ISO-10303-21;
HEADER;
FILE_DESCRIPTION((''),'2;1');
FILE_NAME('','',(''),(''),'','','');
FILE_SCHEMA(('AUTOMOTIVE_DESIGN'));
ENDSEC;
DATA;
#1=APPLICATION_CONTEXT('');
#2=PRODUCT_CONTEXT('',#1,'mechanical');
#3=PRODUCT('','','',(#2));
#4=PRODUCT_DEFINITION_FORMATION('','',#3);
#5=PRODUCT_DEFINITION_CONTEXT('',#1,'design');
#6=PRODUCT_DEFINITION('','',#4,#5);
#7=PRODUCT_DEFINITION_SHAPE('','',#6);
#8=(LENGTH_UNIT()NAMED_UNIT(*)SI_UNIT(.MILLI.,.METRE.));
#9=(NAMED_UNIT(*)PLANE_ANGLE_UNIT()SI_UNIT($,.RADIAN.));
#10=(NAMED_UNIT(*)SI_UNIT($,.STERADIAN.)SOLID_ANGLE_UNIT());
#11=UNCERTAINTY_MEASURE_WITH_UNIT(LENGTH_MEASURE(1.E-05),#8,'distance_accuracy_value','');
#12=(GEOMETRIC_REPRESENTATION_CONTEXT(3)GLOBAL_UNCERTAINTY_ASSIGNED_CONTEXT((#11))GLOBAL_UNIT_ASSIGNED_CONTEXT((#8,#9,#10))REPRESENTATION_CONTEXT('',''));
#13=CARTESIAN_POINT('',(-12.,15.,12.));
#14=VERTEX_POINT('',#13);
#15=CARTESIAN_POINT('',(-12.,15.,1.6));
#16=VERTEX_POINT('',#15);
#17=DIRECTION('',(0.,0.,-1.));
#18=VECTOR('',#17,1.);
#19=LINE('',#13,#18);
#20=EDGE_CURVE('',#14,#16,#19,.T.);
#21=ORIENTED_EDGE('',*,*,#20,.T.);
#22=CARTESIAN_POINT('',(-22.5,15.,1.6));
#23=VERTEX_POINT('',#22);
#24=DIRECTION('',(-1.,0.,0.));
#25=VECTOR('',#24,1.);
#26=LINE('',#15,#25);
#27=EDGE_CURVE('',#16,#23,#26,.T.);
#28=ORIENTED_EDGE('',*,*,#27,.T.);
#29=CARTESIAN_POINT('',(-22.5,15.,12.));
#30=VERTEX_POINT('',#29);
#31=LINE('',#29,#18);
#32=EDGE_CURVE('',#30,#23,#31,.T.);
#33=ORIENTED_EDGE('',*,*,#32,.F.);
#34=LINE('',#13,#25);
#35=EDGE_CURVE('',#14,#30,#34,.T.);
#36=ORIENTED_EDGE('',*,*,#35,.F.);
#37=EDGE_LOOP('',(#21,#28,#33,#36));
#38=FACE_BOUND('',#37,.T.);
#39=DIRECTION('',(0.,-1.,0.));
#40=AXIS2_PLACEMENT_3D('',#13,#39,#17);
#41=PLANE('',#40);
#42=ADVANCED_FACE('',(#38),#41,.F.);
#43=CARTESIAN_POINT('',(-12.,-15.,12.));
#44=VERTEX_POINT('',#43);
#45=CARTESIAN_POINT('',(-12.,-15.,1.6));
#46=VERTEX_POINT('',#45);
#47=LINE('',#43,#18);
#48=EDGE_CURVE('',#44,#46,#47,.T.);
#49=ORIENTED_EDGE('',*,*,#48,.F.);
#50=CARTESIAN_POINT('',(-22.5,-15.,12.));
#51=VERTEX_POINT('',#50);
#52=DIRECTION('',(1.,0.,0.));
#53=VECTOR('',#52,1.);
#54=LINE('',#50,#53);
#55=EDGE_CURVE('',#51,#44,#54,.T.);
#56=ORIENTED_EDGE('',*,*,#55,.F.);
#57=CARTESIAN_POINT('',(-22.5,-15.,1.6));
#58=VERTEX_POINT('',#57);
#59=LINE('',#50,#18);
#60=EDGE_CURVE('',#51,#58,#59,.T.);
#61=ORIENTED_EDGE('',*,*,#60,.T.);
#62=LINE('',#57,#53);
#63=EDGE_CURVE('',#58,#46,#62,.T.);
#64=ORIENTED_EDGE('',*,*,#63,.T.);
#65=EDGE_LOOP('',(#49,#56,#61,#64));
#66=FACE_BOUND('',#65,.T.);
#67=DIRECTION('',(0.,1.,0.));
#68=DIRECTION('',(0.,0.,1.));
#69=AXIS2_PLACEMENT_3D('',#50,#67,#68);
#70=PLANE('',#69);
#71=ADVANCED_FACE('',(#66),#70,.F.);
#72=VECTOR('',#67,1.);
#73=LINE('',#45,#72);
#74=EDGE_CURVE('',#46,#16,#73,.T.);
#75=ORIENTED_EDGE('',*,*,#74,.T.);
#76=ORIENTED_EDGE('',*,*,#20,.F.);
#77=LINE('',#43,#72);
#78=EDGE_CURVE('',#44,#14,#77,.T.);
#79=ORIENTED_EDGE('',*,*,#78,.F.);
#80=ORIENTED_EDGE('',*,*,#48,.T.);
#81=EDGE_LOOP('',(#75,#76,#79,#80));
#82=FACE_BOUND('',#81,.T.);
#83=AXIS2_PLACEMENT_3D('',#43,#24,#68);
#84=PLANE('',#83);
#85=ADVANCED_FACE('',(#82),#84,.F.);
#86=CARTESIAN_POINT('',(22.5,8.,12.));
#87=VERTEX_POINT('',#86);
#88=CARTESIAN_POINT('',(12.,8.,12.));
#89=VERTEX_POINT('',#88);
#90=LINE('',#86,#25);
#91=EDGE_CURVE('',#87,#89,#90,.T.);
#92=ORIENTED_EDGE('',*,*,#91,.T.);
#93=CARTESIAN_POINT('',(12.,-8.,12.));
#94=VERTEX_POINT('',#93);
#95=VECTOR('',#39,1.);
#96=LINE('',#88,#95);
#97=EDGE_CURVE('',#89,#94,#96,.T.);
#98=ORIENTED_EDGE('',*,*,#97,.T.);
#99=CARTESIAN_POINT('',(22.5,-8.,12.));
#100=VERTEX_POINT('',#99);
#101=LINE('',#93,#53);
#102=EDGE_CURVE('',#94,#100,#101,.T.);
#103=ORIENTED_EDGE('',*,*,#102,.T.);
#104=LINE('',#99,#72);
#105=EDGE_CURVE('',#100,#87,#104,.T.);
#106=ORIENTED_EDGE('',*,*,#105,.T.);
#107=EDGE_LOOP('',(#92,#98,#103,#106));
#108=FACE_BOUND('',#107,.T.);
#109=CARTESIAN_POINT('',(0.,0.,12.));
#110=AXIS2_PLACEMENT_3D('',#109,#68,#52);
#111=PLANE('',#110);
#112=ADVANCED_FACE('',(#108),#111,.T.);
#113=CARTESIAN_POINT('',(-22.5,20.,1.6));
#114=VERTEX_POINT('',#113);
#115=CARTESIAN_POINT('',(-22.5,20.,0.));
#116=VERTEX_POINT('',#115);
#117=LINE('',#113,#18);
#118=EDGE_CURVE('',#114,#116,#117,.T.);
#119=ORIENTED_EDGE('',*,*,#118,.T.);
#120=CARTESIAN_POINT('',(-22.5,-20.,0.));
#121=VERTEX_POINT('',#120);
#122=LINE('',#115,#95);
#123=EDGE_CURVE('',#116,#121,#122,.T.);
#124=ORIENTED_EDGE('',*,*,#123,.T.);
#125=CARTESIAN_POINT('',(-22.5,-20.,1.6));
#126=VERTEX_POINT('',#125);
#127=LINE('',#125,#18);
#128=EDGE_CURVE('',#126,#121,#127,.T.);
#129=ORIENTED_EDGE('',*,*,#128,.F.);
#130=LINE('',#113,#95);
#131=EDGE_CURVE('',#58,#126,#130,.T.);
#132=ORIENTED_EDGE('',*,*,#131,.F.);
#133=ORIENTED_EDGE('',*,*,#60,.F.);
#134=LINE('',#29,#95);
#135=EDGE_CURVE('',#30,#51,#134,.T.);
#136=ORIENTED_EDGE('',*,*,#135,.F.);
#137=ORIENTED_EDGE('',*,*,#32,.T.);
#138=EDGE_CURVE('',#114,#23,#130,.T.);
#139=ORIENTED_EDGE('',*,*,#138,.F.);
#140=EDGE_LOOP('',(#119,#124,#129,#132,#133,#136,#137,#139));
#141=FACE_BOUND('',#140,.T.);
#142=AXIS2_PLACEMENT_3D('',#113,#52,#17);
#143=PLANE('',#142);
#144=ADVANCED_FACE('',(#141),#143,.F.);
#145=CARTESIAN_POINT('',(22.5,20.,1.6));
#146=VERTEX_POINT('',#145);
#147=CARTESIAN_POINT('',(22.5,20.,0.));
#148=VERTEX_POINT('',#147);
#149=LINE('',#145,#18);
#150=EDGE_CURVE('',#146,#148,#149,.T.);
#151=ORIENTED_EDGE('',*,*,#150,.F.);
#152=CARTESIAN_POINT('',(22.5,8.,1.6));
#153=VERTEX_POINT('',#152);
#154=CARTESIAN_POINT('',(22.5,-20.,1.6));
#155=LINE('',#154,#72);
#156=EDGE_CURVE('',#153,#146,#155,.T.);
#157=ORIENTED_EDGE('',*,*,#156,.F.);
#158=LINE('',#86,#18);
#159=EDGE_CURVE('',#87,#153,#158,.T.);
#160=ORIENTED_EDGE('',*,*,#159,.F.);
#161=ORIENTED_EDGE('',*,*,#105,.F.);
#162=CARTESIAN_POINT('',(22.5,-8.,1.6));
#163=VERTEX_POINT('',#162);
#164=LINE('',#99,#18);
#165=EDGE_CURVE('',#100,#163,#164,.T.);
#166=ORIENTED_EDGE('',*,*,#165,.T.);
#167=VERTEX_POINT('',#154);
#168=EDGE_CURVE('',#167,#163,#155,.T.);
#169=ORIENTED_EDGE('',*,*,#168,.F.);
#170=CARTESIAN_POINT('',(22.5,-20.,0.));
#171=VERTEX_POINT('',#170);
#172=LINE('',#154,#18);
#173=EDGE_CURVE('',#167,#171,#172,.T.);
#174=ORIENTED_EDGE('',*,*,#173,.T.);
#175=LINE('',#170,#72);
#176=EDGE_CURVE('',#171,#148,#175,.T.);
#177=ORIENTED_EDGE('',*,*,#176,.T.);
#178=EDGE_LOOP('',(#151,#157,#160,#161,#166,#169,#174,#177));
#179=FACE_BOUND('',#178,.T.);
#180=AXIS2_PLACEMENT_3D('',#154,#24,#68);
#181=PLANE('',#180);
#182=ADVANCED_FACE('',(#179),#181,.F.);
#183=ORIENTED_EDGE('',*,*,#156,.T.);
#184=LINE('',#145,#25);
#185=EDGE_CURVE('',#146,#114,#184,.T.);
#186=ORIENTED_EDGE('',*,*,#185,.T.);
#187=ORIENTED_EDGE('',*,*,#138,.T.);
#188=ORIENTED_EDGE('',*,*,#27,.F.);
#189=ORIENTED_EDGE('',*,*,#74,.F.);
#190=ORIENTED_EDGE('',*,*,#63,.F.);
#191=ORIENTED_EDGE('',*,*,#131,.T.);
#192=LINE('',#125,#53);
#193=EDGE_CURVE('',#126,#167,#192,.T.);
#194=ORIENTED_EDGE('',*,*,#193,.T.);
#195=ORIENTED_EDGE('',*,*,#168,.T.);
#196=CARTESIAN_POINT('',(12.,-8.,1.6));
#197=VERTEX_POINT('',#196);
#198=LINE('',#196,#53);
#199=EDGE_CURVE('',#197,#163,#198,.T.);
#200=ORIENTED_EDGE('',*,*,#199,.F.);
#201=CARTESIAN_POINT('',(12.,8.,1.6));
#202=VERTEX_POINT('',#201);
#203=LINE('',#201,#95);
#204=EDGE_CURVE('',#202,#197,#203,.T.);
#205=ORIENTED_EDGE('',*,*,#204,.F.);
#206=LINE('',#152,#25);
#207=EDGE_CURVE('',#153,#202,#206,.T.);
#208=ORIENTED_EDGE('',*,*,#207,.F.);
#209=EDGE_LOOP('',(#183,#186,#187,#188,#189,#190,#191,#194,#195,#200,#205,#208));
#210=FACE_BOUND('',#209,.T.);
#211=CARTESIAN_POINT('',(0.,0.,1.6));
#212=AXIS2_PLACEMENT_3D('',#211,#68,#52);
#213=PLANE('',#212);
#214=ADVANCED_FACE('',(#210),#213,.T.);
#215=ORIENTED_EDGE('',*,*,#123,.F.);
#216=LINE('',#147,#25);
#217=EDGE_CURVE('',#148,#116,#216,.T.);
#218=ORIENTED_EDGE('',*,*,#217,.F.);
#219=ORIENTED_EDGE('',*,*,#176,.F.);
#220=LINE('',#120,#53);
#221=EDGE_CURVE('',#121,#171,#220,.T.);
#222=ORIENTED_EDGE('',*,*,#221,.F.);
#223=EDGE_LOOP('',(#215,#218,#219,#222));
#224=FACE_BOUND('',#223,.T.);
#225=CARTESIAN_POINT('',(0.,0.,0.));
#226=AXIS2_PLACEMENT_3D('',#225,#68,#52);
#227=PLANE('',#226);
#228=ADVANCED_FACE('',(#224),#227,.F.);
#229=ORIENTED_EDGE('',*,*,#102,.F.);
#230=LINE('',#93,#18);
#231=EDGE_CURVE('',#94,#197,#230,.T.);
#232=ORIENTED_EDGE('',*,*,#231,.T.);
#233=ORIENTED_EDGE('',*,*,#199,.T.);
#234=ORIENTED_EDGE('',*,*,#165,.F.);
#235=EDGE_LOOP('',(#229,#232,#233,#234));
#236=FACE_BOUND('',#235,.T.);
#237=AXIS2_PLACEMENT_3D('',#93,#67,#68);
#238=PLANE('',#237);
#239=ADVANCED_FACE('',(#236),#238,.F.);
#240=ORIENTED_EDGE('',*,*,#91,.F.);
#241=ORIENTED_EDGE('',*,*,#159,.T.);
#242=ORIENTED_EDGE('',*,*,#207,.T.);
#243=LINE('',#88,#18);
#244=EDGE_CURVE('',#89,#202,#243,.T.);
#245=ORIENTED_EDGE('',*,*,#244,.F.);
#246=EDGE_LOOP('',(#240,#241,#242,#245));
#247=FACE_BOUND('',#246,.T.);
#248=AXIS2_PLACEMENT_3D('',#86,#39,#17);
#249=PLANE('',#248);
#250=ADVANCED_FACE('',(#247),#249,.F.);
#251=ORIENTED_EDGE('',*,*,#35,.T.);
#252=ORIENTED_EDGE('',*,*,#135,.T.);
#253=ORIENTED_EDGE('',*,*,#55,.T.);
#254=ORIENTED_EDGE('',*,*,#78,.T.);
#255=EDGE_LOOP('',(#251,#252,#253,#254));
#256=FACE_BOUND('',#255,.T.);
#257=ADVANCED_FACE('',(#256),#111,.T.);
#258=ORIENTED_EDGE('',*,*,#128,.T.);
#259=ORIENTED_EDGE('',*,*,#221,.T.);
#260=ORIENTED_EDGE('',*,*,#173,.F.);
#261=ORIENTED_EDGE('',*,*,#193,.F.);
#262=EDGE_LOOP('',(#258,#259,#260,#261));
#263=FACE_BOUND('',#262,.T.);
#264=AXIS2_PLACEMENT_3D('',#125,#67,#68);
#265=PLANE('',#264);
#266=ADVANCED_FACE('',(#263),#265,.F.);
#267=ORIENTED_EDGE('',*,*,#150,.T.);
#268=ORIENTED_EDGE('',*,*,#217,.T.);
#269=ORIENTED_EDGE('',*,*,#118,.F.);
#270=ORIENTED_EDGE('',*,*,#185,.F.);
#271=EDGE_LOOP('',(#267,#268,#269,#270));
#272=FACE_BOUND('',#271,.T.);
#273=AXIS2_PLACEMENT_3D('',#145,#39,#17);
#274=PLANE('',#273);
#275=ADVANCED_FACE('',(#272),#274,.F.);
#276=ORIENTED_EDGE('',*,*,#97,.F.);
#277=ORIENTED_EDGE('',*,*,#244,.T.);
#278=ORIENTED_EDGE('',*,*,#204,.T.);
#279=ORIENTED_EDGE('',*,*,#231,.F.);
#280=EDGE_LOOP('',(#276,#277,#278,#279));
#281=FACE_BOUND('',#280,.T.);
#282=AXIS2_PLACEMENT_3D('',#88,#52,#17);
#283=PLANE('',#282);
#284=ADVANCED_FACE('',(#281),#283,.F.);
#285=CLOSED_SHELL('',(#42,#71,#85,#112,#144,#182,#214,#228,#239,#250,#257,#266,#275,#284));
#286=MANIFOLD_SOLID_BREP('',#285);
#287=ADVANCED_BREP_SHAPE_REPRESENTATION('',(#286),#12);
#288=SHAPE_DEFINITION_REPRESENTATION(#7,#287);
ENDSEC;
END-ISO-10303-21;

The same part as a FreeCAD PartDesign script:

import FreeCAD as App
import Part
import Sketcher
Q = App.Units.Quantity

doc = App.newDocument("Part")
body = doc.addObject("PartDesign::Body", "Body")

sketch1 = body.newObject("Sketcher::SketchObject", "Sketch")
sketch1.AttachmentSupport = (doc.getObject("XY_Plane"), [""])
sketch1.MapMode = "FlatFace"
sketch1.addGeometry([
    Part.LineSegment(App.Vector(-22.5, 20, 0), App.Vector(-22.5, -20, 0)),
    Part.LineSegment(App.Vector(-22.5, -20, 0), App.Vector(22.5, -20, 0)),
    Part.LineSegment(App.Vector(22.5, -20, 0), App.Vector(22.5, 20, 0)),
    Part.LineSegment(App.Vector(22.5, 20, 0), App.Vector(-22.5, 20, 0)),
], False)
sketch1.addConstraint([
    Sketcher.Constraint("Coincident", 0, 2, 1, 1),
    Sketcher.Constraint("Coincident", 1, 2, 2, 1),
    Sketcher.Constraint("Coincident", 2, 2, 3, 1),
    Sketcher.Constraint("Coincident", 3, 2, 0, 1),
    Sketcher.Constraint("Vertical", 0),
    Sketcher.Constraint("Horizontal", 1),
    Sketcher.Constraint("Vertical", 2),
    Sketcher.Constraint("Horizontal", 3),
    Sketcher.Constraint("Symmetric", 0, 2, 2, 2, -1, 1),
    Sketcher.Constraint("DistanceX", 1, 1, 1, 2, Q("45 mm")),
    Sketcher.Constraint("DistanceY", 0, 2, 0, 1, Q("40 mm")),
])
pad1 = body.newObject("PartDesign::Pad", "Pad")
pad1.Profile = sketch1
pad1.Length = 1.6

sketch2 = body.newObject("Sketcher::SketchObject", "Sketch001")
sketch2.AttachmentSupport = (doc.getObject("XY_Plane"), [""])
sketch2.MapMode = "FlatFace"
sketch2.AttachmentOffset = App.Placement(App.Vector(0, 0, 1.6), App.Rotation())
sketch2.addGeometry([
    Part.LineSegment(App.Vector(-22.5, 15, 0), App.Vector(-22.5, -15, 0)),
    Part.LineSegment(App.Vector(-22.5, -15, 0), App.Vector(-12, -15, 0)),
    Part.LineSegment(App.Vector(-12, -15, 0), App.Vector(-12, 15, 0)),
    Part.LineSegment(App.Vector(-12, 15, 0), App.Vector(-22.5, 15, 0)),
], False)
sketch2.addConstraint([
    Sketcher.Constraint("Coincident", 0, 2, 1, 1),
    Sketcher.Constraint("Coincident", 1, 2, 2, 1),
    Sketcher.Constraint("Coincident", 2, 2, 3, 1),
    Sketcher.Constraint("Coincident", 3, 2, 0, 1),
    Sketcher.Constraint("Vertical", 0),
    Sketcher.Constraint("Horizontal", 1),
    Sketcher.Constraint("Vertical", 2),
    Sketcher.Constraint("Horizontal", 3),
    Sketcher.Constraint("DistanceY", 0, 2, 0, 1, Q("30 mm")),
    Sketcher.Constraint("DistanceX", 1, 1, 1, 2, Q("10.5 mm")),
    Sketcher.Constraint("DistanceY", 0, 2, -1, 1, Q("15 mm")),
    Sketcher.Constraint("DistanceX", 1, 2, -1, 1, Q("12 mm")),
])
pad2 = body.newObject("PartDesign::Pad", "Pad001")
pad2.Profile = sketch2
pad2.Length = 10.4

sketch3 = body.newObject("Sketcher::SketchObject", "Sketch002")
sketch3.AttachmentSupport = (doc.getObject("XY_Plane"), [""])
sketch3.MapMode = "FlatFace"
sketch3.AttachmentOffset = App.Placement(App.Vector(0, 0, 1.6), App.Rotation())
sketch3.addGeometry([
    Part.LineSegment(App.Vector(12, 8, 0), App.Vector(12, -8, 0)),
    Part.LineSegment(App.Vector(12, -8, 0), App.Vector(22.5, -8, 0)),
    Part.LineSegment(App.Vector(22.5, -8, 0), App.Vector(22.5, 8, 0)),
    Part.LineSegment(App.Vector(22.5, 8, 0), App.Vector(12, 8, 0)),
], False)
sketch3.addConstraint([
    Sketcher.Constraint("Coincident", 0, 2, 1, 1),
    Sketcher.Constraint("Coincident", 1, 2, 2, 1),
    Sketcher.Constraint("Coincident", 2, 2, 3, 1),
    Sketcher.Constraint("Coincident", 3, 2, 0, 1),
    Sketcher.Constraint("Vertical", 0),
    Sketcher.Constraint("Horizontal", 1),
    Sketcher.Constraint("Vertical", 2),
    Sketcher.Constraint("Horizontal", 3),
    Sketcher.Constraint("DistanceY", 0, 2, 0, 1, Q("16 mm")),
    Sketcher.Constraint("DistanceX", 1, 1, 1, 2, Q("10.5 mm")),
    Sketcher.Constraint("DistanceX", -1, 1, 0, 2, Q("12 mm")),
    Sketcher.Constraint("DistanceY", 0, 2, -1, 1, Q("8 mm")),
])
pad3 = body.newObject("PartDesign::Pad", "Pad002")
pad3.Profile = sketch3
pad3.Length = 10.4

doc.recompute()
